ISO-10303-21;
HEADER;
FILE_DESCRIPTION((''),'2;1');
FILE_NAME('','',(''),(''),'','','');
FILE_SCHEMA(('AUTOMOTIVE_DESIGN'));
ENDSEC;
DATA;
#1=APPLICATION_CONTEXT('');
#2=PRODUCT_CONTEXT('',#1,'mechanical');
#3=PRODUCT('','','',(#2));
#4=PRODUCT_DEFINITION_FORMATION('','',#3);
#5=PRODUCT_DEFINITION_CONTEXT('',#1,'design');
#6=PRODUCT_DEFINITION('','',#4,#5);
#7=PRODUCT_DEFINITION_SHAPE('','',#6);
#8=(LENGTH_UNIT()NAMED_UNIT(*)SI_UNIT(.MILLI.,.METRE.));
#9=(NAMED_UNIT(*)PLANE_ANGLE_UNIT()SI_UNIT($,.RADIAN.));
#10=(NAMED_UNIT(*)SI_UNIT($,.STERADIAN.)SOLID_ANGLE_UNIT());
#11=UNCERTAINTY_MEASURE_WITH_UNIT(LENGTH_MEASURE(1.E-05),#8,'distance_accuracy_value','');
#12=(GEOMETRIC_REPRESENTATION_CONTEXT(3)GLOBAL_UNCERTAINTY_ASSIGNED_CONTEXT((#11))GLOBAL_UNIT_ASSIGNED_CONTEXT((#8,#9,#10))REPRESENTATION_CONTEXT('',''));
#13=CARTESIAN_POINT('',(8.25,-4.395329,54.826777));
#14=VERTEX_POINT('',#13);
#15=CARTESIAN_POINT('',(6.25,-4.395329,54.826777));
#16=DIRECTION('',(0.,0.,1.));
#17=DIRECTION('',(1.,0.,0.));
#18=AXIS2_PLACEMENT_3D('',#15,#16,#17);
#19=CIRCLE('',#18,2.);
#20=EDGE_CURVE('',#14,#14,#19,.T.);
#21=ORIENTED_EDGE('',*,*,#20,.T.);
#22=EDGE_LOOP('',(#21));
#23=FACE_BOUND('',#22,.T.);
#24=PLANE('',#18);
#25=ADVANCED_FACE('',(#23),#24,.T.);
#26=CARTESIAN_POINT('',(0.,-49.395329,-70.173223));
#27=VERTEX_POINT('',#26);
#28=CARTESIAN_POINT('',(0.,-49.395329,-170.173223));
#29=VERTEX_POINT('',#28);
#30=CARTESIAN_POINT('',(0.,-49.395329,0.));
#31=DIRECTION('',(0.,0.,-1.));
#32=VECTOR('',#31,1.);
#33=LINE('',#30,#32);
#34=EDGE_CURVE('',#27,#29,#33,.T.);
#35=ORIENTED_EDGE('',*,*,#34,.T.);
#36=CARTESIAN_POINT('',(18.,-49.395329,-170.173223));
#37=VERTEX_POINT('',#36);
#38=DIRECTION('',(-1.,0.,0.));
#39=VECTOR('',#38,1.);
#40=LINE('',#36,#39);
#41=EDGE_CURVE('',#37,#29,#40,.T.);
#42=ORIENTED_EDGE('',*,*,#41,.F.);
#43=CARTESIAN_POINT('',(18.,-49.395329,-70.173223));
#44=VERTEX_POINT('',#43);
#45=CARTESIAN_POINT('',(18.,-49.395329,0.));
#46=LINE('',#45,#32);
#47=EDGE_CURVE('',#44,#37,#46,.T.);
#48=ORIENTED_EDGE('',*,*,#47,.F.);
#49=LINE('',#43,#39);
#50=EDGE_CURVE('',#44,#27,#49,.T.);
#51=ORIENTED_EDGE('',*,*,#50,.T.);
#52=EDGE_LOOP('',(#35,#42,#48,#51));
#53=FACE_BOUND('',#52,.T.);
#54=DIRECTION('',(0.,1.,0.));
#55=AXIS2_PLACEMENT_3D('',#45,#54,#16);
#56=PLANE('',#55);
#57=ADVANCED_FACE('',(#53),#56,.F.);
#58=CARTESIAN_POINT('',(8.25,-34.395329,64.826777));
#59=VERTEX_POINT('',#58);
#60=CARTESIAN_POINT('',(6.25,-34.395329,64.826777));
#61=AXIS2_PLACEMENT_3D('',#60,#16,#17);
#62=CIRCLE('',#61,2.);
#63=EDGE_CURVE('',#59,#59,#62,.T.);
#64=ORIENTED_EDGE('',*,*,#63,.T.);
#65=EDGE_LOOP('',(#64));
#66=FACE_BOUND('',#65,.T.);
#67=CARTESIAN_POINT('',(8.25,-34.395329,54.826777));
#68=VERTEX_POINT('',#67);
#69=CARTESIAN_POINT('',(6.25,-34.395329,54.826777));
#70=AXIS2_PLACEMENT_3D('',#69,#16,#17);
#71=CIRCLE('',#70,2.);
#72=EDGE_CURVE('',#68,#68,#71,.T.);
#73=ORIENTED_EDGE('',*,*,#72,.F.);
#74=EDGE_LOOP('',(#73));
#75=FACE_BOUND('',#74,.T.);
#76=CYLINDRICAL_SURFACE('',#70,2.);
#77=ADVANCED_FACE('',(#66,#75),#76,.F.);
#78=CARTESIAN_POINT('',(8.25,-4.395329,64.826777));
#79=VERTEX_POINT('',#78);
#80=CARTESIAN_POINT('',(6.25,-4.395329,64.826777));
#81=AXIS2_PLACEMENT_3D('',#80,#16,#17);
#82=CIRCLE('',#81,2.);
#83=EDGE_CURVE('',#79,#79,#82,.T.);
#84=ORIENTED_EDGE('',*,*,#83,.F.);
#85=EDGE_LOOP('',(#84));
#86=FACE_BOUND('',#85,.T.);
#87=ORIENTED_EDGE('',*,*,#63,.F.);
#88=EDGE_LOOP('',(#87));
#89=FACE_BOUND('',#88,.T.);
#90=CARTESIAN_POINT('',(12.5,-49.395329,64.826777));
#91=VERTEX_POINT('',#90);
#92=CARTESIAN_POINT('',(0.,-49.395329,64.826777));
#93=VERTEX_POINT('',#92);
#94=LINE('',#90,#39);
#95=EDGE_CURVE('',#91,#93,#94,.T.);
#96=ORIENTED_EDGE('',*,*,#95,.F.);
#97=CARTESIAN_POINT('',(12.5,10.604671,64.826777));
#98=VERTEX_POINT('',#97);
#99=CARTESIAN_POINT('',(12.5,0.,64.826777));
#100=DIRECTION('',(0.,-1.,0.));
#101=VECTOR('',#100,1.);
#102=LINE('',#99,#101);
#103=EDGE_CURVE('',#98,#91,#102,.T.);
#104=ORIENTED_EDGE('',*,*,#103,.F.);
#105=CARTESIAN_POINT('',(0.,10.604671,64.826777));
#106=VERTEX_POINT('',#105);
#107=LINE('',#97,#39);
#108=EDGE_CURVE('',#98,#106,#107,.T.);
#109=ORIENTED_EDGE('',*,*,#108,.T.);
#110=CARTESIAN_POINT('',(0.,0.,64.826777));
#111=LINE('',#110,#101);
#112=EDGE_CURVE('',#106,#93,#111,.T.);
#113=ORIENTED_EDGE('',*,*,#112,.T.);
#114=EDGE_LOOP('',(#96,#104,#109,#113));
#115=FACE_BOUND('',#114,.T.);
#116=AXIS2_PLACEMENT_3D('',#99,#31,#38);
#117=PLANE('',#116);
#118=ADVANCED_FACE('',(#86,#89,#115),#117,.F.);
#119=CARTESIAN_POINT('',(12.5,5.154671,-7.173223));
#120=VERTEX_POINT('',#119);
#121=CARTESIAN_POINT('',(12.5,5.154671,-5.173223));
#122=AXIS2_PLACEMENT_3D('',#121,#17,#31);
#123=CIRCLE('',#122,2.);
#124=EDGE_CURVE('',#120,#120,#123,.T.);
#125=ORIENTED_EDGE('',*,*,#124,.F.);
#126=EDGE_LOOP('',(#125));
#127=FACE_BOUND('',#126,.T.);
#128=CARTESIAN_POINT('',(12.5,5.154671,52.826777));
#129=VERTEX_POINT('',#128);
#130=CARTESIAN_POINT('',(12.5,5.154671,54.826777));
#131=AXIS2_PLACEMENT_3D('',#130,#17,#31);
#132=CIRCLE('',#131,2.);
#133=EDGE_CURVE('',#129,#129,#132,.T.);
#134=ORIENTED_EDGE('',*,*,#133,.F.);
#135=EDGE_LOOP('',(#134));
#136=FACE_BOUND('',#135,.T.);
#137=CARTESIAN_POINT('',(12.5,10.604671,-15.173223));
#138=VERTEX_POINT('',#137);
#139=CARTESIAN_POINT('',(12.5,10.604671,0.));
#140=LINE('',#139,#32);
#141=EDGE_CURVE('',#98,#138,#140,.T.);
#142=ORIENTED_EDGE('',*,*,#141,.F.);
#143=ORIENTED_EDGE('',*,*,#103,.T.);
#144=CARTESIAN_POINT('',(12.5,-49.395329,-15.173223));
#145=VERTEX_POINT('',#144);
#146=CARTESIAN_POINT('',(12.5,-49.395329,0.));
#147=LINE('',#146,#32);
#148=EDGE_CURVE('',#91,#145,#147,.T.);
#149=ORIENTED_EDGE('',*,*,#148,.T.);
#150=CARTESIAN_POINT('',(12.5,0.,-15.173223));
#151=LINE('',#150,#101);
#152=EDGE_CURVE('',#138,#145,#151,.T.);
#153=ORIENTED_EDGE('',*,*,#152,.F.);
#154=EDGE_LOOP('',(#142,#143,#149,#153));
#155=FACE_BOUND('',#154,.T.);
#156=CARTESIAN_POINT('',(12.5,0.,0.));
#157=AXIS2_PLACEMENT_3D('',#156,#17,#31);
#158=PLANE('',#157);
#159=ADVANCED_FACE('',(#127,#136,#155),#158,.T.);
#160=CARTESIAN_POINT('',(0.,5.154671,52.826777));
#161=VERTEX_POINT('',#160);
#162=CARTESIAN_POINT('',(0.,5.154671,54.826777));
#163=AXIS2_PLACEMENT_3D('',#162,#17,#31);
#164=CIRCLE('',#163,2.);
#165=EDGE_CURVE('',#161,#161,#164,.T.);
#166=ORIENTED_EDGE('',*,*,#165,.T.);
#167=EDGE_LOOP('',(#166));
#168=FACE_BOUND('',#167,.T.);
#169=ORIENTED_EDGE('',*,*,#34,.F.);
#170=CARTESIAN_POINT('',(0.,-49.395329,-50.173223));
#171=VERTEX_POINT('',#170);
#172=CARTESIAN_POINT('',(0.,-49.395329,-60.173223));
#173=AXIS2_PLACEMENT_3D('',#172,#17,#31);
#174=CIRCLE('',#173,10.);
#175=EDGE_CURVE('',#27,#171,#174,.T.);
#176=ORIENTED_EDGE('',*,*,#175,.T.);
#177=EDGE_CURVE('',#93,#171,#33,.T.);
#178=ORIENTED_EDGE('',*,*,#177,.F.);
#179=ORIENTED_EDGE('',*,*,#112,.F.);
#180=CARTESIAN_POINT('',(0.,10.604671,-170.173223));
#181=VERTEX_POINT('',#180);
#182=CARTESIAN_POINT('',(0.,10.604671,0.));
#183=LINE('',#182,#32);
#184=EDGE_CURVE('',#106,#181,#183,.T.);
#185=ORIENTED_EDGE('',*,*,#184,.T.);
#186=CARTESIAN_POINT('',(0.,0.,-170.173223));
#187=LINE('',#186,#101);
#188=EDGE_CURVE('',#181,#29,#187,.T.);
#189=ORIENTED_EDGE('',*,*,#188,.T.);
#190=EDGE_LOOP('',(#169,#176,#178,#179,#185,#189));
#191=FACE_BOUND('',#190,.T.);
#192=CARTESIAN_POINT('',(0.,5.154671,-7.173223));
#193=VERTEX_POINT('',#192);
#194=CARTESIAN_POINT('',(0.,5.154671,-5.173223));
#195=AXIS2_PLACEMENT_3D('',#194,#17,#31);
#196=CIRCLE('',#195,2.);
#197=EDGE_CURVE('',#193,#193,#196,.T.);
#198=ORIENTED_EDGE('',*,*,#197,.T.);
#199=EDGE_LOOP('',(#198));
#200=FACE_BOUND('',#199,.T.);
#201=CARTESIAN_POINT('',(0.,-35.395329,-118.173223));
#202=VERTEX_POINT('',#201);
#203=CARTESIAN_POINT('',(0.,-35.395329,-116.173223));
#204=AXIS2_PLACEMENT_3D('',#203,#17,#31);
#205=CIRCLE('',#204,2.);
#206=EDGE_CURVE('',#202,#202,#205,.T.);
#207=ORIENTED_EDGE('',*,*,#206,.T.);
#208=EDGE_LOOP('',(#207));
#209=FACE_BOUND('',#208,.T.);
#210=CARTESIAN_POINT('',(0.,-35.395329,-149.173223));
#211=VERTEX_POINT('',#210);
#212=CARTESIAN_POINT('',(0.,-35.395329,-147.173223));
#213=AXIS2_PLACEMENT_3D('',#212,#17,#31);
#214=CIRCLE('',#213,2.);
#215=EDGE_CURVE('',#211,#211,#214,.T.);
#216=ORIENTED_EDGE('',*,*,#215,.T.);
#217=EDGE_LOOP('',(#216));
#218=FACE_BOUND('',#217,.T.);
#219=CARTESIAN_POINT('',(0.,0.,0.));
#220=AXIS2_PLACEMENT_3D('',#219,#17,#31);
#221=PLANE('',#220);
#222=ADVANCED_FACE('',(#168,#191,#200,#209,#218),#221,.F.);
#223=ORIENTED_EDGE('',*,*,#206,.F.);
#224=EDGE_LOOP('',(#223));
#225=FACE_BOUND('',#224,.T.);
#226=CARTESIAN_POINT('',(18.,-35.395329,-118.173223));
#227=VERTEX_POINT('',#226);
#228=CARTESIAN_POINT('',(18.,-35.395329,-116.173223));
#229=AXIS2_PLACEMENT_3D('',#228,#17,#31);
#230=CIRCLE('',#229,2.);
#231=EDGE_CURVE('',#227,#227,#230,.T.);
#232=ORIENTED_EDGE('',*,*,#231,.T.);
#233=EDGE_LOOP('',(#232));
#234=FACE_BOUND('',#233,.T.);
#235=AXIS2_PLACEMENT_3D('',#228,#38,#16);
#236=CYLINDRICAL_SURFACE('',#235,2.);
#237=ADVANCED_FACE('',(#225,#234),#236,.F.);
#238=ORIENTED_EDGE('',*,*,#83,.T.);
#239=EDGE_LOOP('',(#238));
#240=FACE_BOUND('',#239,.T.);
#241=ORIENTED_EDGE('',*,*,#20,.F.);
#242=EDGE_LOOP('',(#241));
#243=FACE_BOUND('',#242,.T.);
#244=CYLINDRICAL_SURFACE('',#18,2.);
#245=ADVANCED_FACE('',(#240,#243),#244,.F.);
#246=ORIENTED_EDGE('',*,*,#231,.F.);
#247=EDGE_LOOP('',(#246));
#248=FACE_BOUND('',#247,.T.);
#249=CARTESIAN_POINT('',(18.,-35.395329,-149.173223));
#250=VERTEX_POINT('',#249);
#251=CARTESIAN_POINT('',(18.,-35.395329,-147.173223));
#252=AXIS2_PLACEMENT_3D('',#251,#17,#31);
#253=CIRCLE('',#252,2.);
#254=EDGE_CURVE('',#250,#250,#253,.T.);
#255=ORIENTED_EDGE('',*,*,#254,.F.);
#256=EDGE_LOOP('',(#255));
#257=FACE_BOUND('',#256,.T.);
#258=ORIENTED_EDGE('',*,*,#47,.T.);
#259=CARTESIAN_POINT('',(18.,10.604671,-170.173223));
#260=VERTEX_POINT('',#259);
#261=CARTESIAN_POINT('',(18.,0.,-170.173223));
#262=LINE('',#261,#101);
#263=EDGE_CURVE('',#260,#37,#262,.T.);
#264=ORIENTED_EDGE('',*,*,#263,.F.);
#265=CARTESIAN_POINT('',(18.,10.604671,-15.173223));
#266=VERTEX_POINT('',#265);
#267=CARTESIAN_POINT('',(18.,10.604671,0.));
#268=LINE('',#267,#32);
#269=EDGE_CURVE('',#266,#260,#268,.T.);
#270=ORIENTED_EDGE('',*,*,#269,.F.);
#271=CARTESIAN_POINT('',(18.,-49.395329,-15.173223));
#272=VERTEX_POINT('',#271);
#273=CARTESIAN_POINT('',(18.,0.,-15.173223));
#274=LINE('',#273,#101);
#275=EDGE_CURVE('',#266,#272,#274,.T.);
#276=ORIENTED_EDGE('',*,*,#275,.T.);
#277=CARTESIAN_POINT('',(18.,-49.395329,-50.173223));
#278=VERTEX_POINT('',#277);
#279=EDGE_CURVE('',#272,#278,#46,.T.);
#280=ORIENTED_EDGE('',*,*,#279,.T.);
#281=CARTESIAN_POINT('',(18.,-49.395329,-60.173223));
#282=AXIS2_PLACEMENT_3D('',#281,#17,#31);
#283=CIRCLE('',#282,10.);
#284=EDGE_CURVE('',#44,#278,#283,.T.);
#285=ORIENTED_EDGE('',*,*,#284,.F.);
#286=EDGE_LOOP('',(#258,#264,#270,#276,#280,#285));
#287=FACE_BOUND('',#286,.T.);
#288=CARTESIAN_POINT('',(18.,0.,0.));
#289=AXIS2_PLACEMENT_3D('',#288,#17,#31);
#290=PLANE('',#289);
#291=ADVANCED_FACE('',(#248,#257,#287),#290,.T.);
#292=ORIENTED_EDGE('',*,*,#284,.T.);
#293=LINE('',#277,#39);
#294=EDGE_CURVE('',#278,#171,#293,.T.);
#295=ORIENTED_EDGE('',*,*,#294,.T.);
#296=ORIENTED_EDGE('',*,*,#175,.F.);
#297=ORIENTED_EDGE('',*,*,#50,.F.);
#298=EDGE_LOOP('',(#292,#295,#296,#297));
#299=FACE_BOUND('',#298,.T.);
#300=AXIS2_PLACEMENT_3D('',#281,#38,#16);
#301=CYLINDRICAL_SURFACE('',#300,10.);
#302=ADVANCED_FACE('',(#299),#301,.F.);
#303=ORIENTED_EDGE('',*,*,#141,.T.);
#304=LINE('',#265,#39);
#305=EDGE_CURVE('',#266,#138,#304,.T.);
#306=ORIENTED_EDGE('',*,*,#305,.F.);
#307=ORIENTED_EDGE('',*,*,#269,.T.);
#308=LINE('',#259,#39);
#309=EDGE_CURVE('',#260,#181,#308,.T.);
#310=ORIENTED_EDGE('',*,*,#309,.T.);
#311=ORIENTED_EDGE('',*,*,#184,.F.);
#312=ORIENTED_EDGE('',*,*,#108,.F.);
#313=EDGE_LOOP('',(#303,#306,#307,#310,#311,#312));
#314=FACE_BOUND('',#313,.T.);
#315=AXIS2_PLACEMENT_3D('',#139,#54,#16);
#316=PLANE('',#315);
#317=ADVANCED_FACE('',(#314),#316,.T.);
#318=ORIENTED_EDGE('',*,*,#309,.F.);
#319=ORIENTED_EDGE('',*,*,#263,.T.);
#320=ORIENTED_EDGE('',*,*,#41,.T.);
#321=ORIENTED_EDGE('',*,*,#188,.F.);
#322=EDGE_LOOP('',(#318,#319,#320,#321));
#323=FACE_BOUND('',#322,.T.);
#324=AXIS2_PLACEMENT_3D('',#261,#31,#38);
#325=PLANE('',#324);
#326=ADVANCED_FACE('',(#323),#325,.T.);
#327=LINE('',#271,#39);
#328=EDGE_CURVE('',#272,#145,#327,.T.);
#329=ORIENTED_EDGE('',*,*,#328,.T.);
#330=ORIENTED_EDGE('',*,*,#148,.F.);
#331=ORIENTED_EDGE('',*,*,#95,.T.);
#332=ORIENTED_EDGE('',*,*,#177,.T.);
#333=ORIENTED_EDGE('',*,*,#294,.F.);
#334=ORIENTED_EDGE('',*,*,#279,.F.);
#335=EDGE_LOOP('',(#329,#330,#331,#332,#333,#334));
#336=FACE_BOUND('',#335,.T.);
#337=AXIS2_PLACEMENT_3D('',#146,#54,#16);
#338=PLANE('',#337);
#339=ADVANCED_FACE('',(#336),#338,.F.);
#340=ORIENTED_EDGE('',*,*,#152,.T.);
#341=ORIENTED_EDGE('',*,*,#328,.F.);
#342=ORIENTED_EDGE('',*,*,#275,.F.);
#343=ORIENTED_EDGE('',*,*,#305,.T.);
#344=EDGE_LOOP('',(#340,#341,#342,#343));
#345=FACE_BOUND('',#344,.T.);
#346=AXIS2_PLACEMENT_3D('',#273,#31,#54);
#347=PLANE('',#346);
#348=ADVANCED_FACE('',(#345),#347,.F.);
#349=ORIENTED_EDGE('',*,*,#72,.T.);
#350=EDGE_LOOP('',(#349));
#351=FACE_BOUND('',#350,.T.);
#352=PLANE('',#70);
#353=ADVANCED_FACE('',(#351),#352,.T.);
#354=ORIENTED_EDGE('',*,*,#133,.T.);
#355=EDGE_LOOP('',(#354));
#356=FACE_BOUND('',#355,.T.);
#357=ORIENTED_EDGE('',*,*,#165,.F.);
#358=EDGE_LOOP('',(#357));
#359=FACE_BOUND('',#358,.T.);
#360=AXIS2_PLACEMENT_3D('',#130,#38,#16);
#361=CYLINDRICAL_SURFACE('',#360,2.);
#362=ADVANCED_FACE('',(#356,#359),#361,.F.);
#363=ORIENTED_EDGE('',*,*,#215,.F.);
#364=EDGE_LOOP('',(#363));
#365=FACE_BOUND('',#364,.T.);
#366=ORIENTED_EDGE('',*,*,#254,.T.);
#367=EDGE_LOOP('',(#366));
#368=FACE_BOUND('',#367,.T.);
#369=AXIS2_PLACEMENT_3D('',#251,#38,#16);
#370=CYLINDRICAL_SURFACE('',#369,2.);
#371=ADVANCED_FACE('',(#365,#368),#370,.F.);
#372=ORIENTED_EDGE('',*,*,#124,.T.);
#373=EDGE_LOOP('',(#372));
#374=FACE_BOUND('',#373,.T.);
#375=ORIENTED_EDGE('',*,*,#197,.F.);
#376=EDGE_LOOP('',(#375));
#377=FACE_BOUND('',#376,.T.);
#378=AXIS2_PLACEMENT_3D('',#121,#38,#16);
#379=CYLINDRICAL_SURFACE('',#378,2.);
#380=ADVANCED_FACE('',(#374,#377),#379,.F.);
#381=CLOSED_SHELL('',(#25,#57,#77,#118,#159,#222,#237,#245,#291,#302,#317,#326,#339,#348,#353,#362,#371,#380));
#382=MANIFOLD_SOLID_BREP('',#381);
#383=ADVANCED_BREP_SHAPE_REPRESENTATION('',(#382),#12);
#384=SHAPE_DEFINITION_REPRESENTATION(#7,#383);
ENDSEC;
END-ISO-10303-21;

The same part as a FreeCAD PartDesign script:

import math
import FreeCAD as App
import Part
import Sketcher

V = App.Vector
Q = App.Units.Quantity

doc = App.newDocument("Part")
body = doc.addObject("PartDesign::Body", "Body")

sketch1 = doc.addObject("Sketcher::SketchObject", "Sketch")
body.addObject(sketch1)
sketch1.AttachmentSupport = (doc.YZ_Plane, [""])
sketch1.MapMode = "FlatFace"
sketch1.addGeometry(Part.LineSegment(V(10.6, 64.8, 0), V(-49.4, 64.8, 0)), False)
sketch1.addGeometry(Part.LineSegment(V(-49.4, 64.8, 0), V(-49.4, -15.2, 0)), False)
sketch1.addGeometry(Part.LineSegment(V(-49.4, -15.2, 0), V(10.6, -15.2, 0)), False)
sketch1.addGeometry(Part.LineSegment(V(10.6, -15.2, 0), V(10.6, 64.8, 0)), False)
sketch1.addGeometry(Part.Circle(V(5.2, 54.8, 0), V(0, 0, 1), 2), False)
sketch1.addGeometry(Part.Circle(V(5.2, -5.2, 0), V(0, 0, 1), 2), False)
sketch1.addConstraint(Sketcher.Constraint("Coincident", 0, 2, 1, 1))
sketch1.addConstraint(Sketcher.Constraint("Coincident", 1, 2, 2, 1))
sketch1.addConstraint(Sketcher.Constraint("Coincident", 2, 2, 3, 1))
sketch1.addConstraint(Sketcher.Constraint("Coincident", 3, 2, 0, 1))
sketch1.addConstraint(Sketcher.Constraint("Horizontal", 0))
sketch1.addConstraint(Sketcher.Constraint("Vertical", 1))
sketch1.addConstraint(Sketcher.Constraint("Horizontal", 2))
sketch1.addConstraint(Sketcher.Constraint("Vertical", 3))
sketch1.addConstraint(Sketcher.Constraint("Equal", 4, 5))
sketch1.addConstraint(Sketcher.Constraint("Vertical", 4, 3, 5, 3))
sketch1.addConstraint(Sketcher.Constraint("Diameter", 4, Q("4 mm")))
sketch1.addConstraint(Sketcher.Constraint("DistanceX", 0, 2, 0, 1, Q("60 mm")))
sketch1.addConstraint(Sketcher.Constraint("DistanceY", 1, 2, 1, 1, Q("80 mm")))
sketch1.addConstraint(Sketcher.Constraint("DistanceY", 5, 3, 4, 3, Q("60 mm")))
sketch1.addConstraint(Sketcher.Constraint("DistanceY", 4, 3, 0, 2, Q("10 mm")))
sketch1.addConstraint(Sketcher.Constraint("DistanceX", 0, 2, 4, 3, Q("54.55 mm")))
sketch1.addConstraint(Sketcher.Constraint("DistanceX", -1, 1, 4, 3, Q("5.154671 mm")))
sketch1.addConstraint(Sketcher.Constraint("DistanceY", -1, 1, 4, 3, Q("54.826777 mm")))
pad1 = doc.addObject("PartDesign::Pad", "Pad")
body.addObject(pad1)
pad1.Profile = sketch1
pad1.Length = 12.5

sketch2 = doc.addObject("Sketcher::SketchObject", "Sketch001")
body.addObject(sketch2)
sketch2.AttachmentSupport = (doc.YZ_Plane, [""])
sketch2.MapMode = "FlatFace"
sketch2.addGeometry(Part.LineSegment(V(10.6, -170.2, 0), V(10.6, -15.2, 0)), False)
sketch2.addGeometry(Part.LineSegment(V(10.6, -15.2, 0), V(-49.4, -15.2, 0)), False)
sketch2.addGeometry(Part.LineSegment(V(-49.4, -15.2, 0), V(-49.4, -50.2, 0)), False)
sketch2.addGeometry(Part.ArcOfCircle(Part.Circle(V(-49.4, -60.2, 0), V(0, 0, 1), 10), math.radians(-90), math.radians(90)), False)
sketch2.addGeometry(Part.LineSegment(V(-49.4, -70.2, 0), V(-49.4, -170.2, 0)), False)
sketch2.addGeometry(Part.LineSegment(V(-49.4, -170.2, 0), V(10.6, -170.2, 0)), False)
sketch2.addGeometry(Part.Circle(V(-35.4, -116.2, 0), V(0, 0, 1), 2), False)
sketch2.addGeometry(Part.Circle(V(-35.4, -147.2, 0), V(0, 0, 1), 2), False)
sketch2.addConstraint(Sketcher.Constraint("Coincident", 0, 2, 1, 1))
sketch2.addConstraint(Sketcher.Constraint("Coincident", 1, 2, 2, 1))
sketch2.addConstraint(Sketcher.Constraint("Coincident", 2, 2, 3, 2))
sketch2.addConstraint(Sketcher.Constraint("Coincident", 3, 1, 4, 1))
sketch2.addConstraint(Sketcher.Constraint("Coincident", 4, 2, 5, 1))
sketch2.addConstraint(Sketcher.Constraint("Coincident", 5, 2, 0, 1))
sketch2.addConstraint(Sketcher.Constraint("Vertical", 0))
sketch2.addConstraint(Sketcher.Constraint("Horizontal", 1))
sketch2.addConstraint(Sketcher.Constraint("Vertical", 2))
sketch2.addConstraint(Sketcher.Constraint("Vertical", 4))
sketch2.addConstraint(Sketcher.Constraint("Horizontal", 5))
sketch2.addConstraint(Sketcher.Constraint("Equal", 6, 7))
sketch2.addConstraint(Sketcher.Constraint("Vertical", 6, 3, 7, 3))
sketch2.addConstraint(Sketcher.Constraint("Vertical", 3, 3, 1, 2))
sketch2.addConstraint(Sketcher.Constraint("Vertical", 2, 2, 3, 1))
sketch2.addConstraint(Sketcher.Constraint("Diameter", 6, Q("4 mm")))
sketch2.addConstraint(Sketcher.Constraint("Radius", 3, Q("10 mm")))
sketch2.addConstraint(Sketcher.Constraint("DistanceX", 1, 2, 1, 1, Q("60 mm")))
sketch2.addConstraint(Sketcher.Constraint("DistanceY", 0, 1, 0, 2, Q("155 mm")))
sketch2.addConstraint(Sketcher.Constraint("DistanceY", 2, 2, 2, 1, Q("35 mm")))
sketch2.addConstraint(Sketcher.Constraint("DistanceX", 3, 3, 6, 3, Q("14 mm")))
sketch2.addConstraint(Sketcher.Constraint("DistanceY", 6, 3, 3, 3, Q("56 mm")))
sketch2.addConstraint(Sketcher.Constraint("DistanceY", 7, 3, 6, 3, Q("31 mm")))
sketch2.addConstraint(Sketcher.Constraint("DistanceX", 3, 3, -1, 1, Q("49.395329 mm")))
sketch2.addConstraint(Sketcher.Constraint("DistanceY", 3, 3, -1, 1, Q("60.173223 mm")))
pad2 = doc.addObject("PartDesign::Pad", "Pad001")
body.addObject(pad2)
pad2.Profile = sketch2
pad2.Length = 18

sketch3 = doc.addObject("Sketcher::SketchObject", "Sketch002")
body.addObject(sketch3)
sketch3.AttachmentSupport = (doc.XY_Plane, [""])
sketch3.MapMode = "FlatFace"
sketch3.AttachmentOffset = App.Placement(V(0, 0, 64.826777), App.Rotation())
sketch3.addGeometry(Part.Circle(V(6.2, -4.4, 0), V(0, 0, 1), 2), False)
sketch3.addGeometry(Part.Circle(V(6.2, -34.4, 0), V(0, 0, 1), 2), False)
sketch3.addConstraint(Sketcher.Constraint("Equal", 0, 1))
sketch3.addConstraint(Sketcher.Constraint("Vertical", 0, 3, 1, 3))
sketch3.addConstraint(Sketcher.Constraint("Diameter", 0, Q("4 mm")))
sketch3.addConstraint(Sketcher.Constraint("DistanceY", 1, 3, 0, 3, Q("30 mm")))
sketch3.addConstraint(Sketcher.Constraint("DistanceX", -1, 1, 0, 3, Q("6.25 mm")))
sketch3.addConstraint(Sketcher.Constraint("DistanceY", 0, 3, -1, 1, Q("4.395329 mm")))
pocket1 = doc.addObject("PartDesign::Pocket", "Pocket")
body.addObject(pocket1)
pocket1.Profile = sketch3
pocket1.Length = 10

doc.recompute()
